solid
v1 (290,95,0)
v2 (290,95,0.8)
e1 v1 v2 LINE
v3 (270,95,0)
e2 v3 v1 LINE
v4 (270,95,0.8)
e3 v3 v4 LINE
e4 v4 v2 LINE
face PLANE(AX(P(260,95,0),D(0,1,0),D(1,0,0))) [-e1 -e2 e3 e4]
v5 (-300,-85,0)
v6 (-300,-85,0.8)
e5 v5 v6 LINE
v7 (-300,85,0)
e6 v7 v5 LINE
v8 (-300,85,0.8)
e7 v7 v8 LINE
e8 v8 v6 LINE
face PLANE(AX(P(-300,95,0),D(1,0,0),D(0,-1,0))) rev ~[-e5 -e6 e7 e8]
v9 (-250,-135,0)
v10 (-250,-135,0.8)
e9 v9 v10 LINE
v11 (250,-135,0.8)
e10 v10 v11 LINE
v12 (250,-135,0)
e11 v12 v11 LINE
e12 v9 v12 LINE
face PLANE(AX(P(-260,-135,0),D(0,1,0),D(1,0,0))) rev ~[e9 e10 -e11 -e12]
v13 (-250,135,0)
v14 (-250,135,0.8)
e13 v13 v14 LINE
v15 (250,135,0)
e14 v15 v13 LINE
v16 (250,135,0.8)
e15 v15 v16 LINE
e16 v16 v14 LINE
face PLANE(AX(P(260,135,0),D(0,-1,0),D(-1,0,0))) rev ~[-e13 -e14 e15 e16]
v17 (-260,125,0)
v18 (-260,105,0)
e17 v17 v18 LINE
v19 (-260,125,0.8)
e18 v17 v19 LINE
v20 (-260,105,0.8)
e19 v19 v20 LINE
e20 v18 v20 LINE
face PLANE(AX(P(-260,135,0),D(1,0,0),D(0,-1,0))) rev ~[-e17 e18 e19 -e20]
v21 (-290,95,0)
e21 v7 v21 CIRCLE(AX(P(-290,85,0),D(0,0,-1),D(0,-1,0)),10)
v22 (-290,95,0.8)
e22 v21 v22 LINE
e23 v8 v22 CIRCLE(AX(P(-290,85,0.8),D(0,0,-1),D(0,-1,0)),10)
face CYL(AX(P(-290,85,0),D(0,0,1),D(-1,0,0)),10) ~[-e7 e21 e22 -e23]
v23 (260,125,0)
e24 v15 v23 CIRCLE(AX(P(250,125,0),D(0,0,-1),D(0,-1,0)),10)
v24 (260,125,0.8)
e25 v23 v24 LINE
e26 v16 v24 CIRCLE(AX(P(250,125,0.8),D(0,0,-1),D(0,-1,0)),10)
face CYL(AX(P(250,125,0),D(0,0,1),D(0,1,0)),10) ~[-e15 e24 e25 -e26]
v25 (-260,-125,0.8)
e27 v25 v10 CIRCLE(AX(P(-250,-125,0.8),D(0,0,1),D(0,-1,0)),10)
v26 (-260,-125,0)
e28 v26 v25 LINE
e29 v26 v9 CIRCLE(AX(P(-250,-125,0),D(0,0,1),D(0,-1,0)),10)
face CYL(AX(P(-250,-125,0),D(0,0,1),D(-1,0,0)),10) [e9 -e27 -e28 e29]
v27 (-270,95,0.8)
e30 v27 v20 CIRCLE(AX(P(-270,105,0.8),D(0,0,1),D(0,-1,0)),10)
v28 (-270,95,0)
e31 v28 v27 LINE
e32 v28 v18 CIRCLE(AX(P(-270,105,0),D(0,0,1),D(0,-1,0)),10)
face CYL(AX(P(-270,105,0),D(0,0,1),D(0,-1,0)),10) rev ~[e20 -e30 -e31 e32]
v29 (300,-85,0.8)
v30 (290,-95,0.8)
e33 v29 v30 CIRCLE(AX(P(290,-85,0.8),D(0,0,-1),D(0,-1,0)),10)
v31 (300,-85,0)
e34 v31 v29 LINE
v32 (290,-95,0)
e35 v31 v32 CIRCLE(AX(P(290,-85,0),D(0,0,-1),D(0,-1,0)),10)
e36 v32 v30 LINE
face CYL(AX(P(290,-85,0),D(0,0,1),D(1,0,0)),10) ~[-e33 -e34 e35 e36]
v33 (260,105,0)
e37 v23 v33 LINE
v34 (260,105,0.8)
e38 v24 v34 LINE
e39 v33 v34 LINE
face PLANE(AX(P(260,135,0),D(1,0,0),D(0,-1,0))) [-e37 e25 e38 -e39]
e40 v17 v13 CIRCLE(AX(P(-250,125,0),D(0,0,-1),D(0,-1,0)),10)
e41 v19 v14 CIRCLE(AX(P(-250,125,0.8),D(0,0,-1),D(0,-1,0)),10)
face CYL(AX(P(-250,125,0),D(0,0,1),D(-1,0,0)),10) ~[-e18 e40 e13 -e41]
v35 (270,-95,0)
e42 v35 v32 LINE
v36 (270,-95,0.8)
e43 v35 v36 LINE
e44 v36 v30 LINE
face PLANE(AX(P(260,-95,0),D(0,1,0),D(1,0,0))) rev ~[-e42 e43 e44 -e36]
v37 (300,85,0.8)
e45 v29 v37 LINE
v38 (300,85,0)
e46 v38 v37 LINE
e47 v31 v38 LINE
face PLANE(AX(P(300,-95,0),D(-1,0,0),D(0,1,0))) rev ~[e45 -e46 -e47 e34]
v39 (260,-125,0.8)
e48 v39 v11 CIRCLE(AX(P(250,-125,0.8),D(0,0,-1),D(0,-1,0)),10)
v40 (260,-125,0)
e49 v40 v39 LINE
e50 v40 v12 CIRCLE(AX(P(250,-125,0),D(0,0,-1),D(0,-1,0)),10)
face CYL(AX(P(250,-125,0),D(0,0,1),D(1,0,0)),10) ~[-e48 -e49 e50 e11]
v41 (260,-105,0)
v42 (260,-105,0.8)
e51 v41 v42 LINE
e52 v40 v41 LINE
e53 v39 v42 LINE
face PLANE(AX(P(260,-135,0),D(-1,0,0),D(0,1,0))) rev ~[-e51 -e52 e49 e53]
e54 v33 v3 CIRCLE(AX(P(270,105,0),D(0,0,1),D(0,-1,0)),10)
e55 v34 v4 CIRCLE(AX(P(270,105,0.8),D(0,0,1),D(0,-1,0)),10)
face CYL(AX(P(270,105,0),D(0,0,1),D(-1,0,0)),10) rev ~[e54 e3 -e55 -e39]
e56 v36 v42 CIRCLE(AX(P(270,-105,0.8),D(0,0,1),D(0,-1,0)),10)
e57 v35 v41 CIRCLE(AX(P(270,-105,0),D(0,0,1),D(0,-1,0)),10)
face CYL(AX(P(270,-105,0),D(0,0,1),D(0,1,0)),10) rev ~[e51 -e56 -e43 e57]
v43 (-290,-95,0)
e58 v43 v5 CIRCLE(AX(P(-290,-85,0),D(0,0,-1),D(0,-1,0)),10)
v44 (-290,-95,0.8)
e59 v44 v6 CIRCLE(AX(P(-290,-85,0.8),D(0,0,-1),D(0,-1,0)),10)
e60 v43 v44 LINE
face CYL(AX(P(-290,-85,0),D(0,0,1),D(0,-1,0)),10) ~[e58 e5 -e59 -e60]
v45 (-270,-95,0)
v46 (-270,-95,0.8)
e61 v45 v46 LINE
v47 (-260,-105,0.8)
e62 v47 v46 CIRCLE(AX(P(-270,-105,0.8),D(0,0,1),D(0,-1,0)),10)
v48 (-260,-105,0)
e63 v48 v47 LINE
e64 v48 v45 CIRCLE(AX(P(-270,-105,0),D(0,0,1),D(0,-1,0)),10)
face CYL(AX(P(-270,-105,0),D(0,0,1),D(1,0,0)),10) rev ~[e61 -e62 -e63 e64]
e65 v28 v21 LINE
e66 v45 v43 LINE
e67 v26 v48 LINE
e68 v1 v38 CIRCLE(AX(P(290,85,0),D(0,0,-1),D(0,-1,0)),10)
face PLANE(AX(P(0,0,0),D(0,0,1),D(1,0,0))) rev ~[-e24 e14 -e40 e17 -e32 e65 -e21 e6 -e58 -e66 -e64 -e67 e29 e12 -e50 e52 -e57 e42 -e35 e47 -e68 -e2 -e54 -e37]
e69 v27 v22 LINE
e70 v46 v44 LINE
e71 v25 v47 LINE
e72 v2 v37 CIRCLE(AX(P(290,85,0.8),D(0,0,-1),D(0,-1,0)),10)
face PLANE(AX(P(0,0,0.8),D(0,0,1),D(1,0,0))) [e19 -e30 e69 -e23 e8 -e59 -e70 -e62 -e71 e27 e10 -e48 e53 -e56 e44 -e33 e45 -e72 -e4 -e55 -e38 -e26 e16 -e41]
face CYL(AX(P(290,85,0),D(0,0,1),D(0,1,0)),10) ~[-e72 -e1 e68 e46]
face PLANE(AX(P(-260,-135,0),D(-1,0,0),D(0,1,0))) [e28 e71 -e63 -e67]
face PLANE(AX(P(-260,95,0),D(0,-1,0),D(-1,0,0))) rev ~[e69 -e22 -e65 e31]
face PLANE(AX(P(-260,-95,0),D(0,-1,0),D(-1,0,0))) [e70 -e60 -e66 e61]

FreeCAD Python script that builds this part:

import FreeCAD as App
import Part
import Sketcher
Q = App.Units.Quantity


def edges_at(feature, points):
    """Names of the edges that pass closest to the given points."""
    edges = feature.Shape.Edges
    near = lambda p: min(range(len(edges)), key=lambda i: edges[i].distToShape(Part.Vertex(*p))[0])
    return sorted({f"Edge{near(p) + 1}" for p in points})

doc = App.newDocument("Part")
body = doc.addObject("PartDesign::Body", "Body")

# Sketch on XY plane
sketch1 = body.newObject("Sketcher::SketchObject", "Sketch")
sketch1.AttachmentSupport = (doc.getObject("XY_Plane"), [""])
sketch1.MapMode = "FlatFace"
sketch1.addGeometry([
    Part.LineSegment(App.Vector(-260, -95, 0), App.Vector(-260, -135, 0)),  # 0
    Part.LineSegment(App.Vector(-260, -135, 0), App.Vector(260, -135, 0)),  # 1
    Part.LineSegment(App.Vector(260, -135, 0), App.Vector(260, -95, 0)),  # 2
    Part.LineSegment(App.Vector(260, -95, 0), App.Vector(300, -95, 0)),  # 3
    Part.LineSegment(App.Vector(300, -95, 0), App.Vector(300, 95, 0)),  # 4
    Part.LineSegment(App.Vector(300, 95, 0), App.Vector(260, 95, 0)),  # 5
    Part.LineSegment(App.Vector(260, 95, 0), App.Vector(260, 135, 0)),  # 6
    Part.LineSegment(App.Vector(260, 135, 0), App.Vector(-260, 135, 0)),  # 7
    Part.LineSegment(App.Vector(-260, 135, 0), App.Vector(-260, 95, 0)),  # 8
    Part.LineSegment(App.Vector(-260, 95, 0), App.Vector(-300, 95, 0)),  # 9
    Part.LineSegment(App.Vector(-300, 95, 0), App.Vector(-300, -95, 0)),  # 10
    Part.LineSegment(App.Vector(-300, -95, 0), App.Vector(-260, -95, 0)),  # 11
], False)
sketch1.addConstraint([
    Sketcher.Constraint("Coincident", 0, 2, 1, 1),
    Sketcher.Constraint("Coincident", 1, 2, 2, 1),
    Sketcher.Constraint("Coincident", 2, 2, 3, 1),
    Sketcher.Constraint("Coincident", 3, 2, 4, 1),
    Sketcher.Constraint("Coincident", 4, 2, 5, 1),
    Sketcher.Constraint("Coincident", 5, 2, 6, 1),
    Sketcher.Constraint("Coincident", 6, 2, 7, 1),
    Sketcher.Constraint("Coincident", 7, 2, 8, 1),
    Sketcher.Constraint("Coincident", 8, 2, 9, 1),
    Sketcher.Constraint("Coincident", 9, 2, 10, 1),
    Sketcher.Constraint("Coincident", 10, 2, 11, 1),
    Sketcher.Constraint("Coincident", 11, 2, 0, 1),
    Sketcher.Constraint("Vertical", 0),
    Sketcher.Constraint("Horizontal", 1),
    Sketcher.Constraint("Vertical", 2),
    Sketcher.Constraint("Horizontal", 3),
    Sketcher.Constraint("Vertical", 4),
    Sketcher.Constraint("Horizontal", 5),
    Sketcher.Constraint("Vertical", 6),
    Sketcher.Constraint("Horizontal", 7),
    Sketcher.Constraint("Vertical", 8),
    Sketcher.Constraint("Horizontal", 9),
    Sketcher.Constraint("Vertical", 10),
    Sketcher.Constraint("Horizontal", 11),
    Sketcher.Constraint("Symmetric", 0, 2, 6, 2, -1, 1),
    Sketcher.Constraint("Symmetric", 2, 2, 8, 2, -1, 1),
    Sketcher.Constraint("Symmetric", 4, 2, 10, 2, -1, 1),
    Sketcher.Constraint("Symmetric", 5, 2, 8, 2, -2),
    Sketcher.Constraint("Equal", 11, 0),
    Sketcher.Constraint("DistanceX", 3, 1, 3, 2, Q("40 mm")),
    Sketcher.Constraint("DistanceY", 1, 2, 6, 2, Q("270 mm")),
    Sketcher.Constraint("DistanceX", 1, 1, 1, 2, Q("520 mm")),
])
pad1 = body.newObject("PartDesign::Pad", "Pad")
pad1.Profile = sketch1
pad1.Length = 0.8
doc.recompute()

fillet = body.newObject("PartDesign::Fillet", "Fillet")
fillet.Base = (pad1, edges_at(pad1, [
    (-300, 95, 0.4),
    (-260, 95, 0.4),
    (-260, 135, 0.4),
    (260, 95, 0.4),
    (260, 135, 0.4),
    (300, 95, 0.4),
    (260, -135, 0.4),
    (260, -95, 0.4),
    (300, -95, 0.4),
    (-260, -95, 0.4),
    (-260, -135, 0.4),
    (-300, -95, 0.4),
]))
fillet.Radius = 10

doc.recompute()
